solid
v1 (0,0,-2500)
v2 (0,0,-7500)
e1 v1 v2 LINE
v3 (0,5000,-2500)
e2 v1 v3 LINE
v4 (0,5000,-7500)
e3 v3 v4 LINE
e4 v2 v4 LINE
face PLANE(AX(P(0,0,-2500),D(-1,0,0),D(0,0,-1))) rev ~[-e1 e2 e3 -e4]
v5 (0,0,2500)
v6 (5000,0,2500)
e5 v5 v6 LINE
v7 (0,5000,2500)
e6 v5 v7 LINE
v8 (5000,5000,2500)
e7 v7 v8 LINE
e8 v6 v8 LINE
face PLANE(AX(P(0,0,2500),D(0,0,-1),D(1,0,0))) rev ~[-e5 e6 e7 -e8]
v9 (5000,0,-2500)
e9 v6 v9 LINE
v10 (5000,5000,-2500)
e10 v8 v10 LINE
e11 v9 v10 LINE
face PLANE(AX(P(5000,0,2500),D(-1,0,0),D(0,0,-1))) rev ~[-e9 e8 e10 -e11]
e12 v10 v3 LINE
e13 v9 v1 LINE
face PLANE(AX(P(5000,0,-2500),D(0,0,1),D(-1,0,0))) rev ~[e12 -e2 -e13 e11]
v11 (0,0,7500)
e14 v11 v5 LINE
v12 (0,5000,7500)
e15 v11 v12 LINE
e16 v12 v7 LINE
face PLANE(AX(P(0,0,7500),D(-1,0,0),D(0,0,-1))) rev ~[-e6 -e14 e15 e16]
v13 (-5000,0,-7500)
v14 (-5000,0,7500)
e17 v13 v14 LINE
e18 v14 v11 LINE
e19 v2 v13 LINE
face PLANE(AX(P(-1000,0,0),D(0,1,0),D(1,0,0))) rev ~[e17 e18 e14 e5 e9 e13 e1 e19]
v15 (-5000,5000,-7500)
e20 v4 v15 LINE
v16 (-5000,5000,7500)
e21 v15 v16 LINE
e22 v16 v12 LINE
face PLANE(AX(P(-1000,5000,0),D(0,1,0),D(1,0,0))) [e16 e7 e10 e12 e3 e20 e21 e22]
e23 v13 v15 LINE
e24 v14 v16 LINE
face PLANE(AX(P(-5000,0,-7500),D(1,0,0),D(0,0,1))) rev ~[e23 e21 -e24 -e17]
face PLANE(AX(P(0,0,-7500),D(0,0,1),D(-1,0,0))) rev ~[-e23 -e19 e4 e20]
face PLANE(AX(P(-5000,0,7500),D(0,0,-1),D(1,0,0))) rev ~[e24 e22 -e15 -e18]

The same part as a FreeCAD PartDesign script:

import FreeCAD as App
import Part
import Sketcher
Q = App.Units.Quantity


def add_polygon(sketch, points):
    """Adds a closed chain of lines whose ends are joined by coincident constraints."""
    first, n = sketch.GeometryCount, len(points)
    for a, b in zip(points, points[1:] + points[:1]):
        sketch.addGeometry(Part.LineSegment(App.Vector(*a, 0), App.Vector(*b, 0)), False)
    for i in range(n):
        sketch.addConstraint(Sketcher.Constraint("Coincident", first + i, 2, first + (i + 1) % n, 1))

doc = App.newDocument("Part")
params = doc.addObject("Spreadsheet::Sheet", "Params")
for row, (alias, value) in enumerate([
    ("sketch1_width", "5000 mm"),
    ("pad1_length", "5000 mm"),
], start=1):
    params.set(f"A{row}", alias)
    params.set(f"B{row}", "=" + value)
    params.setAlias(f"B{row}", alias)

body = doc.addObject("PartDesign::Body", "Body")

sketch1 = body.newObject("Sketcher::SketchObject", "Sketch")
sketch1.AttachmentSupport = (doc.getObject("XZ_Plane"), [""])
sketch1.MapMode = "FlatFace"
add_polygon(sketch1, [(-5000, -7500), (-5000, 7500), (0, 7500), (0, 2500), (5000, 2500), (5000, -2500), (0, -2500), (0, -7500)])
sketch1.addConstraint(Sketcher.Constraint("Vertical", 0))
sketch1.addConstraint(Sketcher.Constraint("Horizontal", 1))
sketch1.addConstraint(Sketcher.Constraint("Vertical", 2))
sketch1.addConstraint(Sketcher.Constraint("Horizontal", 3))
sketch1.addConstraint(Sketcher.Constraint("Vertical", 4))
sketch1.addConstraint(Sketcher.Constraint("Horizontal", 5))
sketch1.addConstraint(Sketcher.Constraint("Vertical", 6))
sketch1.addConstraint(Sketcher.Constraint("Horizontal", 7))
sketch1.addConstraint(Sketcher.Constraint("Symmetric", 2, 2, 5, 2, -1, 1))
sketch1.addConstraint(Sketcher.Constraint("Symmetric", 1, 2, 6, 2, -1))
sketch1.addConstraint(Sketcher.Constraint("Equal", 1, 3))
sketch1.addConstraint(Sketcher.Constraint("Equal", 7, 2))
sketch1.addConstraint(Sketcher.Constraint("Equal", 2, 4))
sketch1.addConstraint(Sketcher.Constraint("DistanceX", 1, 1, 1, 2, Q("5000 mm")))
sketch1.setExpression("Constraints[21]", "Params.sketch1_width")
pad1 = body.newObject("PartDesign::Pad", "Pad")
pad1.Profile = sketch1
pad1.setExpression("Length", "Params.pad1_length")
pad1.Reversed = True

doc.recompute()
